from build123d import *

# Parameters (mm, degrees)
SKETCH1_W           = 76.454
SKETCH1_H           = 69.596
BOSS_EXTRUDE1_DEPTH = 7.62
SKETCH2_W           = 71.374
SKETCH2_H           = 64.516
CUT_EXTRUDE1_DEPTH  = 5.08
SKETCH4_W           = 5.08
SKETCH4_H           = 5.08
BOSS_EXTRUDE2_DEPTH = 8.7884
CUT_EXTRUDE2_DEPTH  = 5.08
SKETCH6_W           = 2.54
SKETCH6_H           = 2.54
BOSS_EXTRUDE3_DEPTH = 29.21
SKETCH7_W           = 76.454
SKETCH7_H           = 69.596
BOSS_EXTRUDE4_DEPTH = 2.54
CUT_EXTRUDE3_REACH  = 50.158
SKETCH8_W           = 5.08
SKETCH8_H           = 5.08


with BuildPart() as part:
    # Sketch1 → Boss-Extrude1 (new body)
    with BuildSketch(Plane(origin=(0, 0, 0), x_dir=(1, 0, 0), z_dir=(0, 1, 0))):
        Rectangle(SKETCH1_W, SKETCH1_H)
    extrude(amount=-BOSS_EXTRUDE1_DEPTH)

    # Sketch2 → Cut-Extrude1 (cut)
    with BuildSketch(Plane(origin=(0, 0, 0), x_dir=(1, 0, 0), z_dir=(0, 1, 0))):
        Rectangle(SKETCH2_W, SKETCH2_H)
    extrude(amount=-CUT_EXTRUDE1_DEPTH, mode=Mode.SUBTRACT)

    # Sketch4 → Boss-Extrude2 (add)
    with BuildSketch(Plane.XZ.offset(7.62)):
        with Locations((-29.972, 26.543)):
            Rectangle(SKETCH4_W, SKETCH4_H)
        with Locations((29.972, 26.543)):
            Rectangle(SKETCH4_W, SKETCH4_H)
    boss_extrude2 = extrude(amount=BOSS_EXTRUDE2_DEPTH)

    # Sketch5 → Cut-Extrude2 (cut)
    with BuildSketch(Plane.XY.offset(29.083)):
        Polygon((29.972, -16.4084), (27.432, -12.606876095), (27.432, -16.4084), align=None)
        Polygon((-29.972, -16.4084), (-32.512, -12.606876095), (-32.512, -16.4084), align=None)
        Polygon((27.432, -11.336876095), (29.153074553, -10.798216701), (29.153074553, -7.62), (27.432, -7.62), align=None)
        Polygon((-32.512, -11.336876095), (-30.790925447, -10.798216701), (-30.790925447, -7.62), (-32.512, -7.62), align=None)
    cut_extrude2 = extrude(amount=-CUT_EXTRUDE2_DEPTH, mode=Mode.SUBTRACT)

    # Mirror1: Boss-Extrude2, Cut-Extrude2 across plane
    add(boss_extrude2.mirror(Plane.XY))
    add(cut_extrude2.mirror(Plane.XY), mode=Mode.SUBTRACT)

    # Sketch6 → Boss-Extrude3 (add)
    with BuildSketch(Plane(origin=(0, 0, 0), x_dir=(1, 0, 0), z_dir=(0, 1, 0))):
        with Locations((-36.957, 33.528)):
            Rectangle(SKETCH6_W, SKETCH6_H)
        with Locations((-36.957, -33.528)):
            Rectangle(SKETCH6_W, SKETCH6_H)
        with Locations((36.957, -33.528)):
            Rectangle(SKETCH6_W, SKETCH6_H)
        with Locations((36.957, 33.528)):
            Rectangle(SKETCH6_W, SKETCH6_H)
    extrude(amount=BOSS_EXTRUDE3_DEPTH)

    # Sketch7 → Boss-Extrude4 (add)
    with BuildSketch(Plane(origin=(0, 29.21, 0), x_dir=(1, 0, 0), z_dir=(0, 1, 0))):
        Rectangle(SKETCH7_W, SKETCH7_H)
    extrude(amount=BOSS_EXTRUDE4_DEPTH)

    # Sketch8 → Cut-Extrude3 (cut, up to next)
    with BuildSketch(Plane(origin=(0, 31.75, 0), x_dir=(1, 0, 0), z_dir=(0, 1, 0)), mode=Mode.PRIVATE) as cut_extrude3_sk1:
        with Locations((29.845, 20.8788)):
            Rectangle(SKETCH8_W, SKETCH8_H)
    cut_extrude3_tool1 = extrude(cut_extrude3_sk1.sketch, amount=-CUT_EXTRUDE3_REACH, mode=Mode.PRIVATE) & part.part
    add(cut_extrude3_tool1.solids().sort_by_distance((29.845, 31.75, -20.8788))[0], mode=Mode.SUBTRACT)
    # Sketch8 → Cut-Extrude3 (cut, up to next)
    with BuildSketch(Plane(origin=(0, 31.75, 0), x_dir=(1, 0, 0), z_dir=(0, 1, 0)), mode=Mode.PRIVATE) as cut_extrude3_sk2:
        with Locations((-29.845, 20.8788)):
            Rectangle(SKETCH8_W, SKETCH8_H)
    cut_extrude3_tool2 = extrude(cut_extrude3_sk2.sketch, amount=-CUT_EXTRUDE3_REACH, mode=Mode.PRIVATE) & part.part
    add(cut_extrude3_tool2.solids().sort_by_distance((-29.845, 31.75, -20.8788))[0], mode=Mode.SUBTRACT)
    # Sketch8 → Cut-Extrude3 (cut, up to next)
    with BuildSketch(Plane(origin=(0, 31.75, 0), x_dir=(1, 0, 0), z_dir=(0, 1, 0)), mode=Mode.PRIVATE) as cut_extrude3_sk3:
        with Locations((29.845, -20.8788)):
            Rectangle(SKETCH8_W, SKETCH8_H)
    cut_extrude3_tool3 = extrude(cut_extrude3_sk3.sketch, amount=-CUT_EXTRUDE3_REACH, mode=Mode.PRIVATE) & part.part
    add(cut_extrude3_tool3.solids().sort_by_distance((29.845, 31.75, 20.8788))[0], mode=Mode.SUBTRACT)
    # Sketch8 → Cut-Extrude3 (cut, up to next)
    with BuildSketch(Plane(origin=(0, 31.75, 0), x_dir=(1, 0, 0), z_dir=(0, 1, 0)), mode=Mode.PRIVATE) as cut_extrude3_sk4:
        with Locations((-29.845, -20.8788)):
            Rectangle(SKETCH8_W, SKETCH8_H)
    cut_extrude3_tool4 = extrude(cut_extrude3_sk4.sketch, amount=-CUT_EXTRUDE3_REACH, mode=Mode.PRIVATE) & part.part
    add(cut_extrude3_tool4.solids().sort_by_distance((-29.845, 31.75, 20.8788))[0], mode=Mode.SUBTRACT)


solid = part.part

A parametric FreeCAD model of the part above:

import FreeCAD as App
import Part
import Sketcher

V = App.Vector
Q = App.Units.Quantity


def add_polygon(sketch, points):
    """Adds a closed chain of lines whose ends are joined by coincident constraints."""
    first, n = sketch.GeometryCount, len(points)
    for a, b in zip(points, points[1:] + points[:1]):
        sketch.addGeometry(Part.LineSegment(App.Vector(*a, 0), App.Vector(*b, 0)), False)
    for i in range(n):
        sketch.addConstraint(Sketcher.Constraint("Coincident", first + i, 2, first + (i + 1) % n, 1))

doc = App.newDocument("Part")
body = doc.addObject("PartDesign::Body", "Body")

# Sketch on XZ plane
sketch1 = body.newObject("Sketcher::SketchObject", "Sketch")
sketch1.AttachmentSupport = (doc.getObject("XZ_Plane"), [""])
sketch1.MapMode = "FlatFace"
add_polygon(sketch1, [(-38, -35), (-38, 35), (38, 35), (38, -35)])  # lines 0-3
sketch1.addConstraint([
    Sketcher.Constraint("Vertical", 0),
    Sketcher.Constraint("Horizontal", 1),
    Sketcher.Constraint("Vertical", 2),
    Sketcher.Constraint("Horizontal", 3),
    Sketcher.Constraint("Symmetric", 0, 2, 2, 2, -1, 1),
    Sketcher.Constraint("DistanceX", 1, 1, 1, 2, Q("3.01 in")),
    Sketcher.Constraint("DistanceY", 0, 1, 0, 2, Q("2.74 in")),
])
pad1 = body.newObject("PartDesign::Pad", "Pad")
pad1.Profile = sketch1
pad1.Length = Q("0.3 in")

# Sketch on XZ plane
sketch2 = body.newObject("Sketcher::SketchObject", "Sketch001")
sketch2.AttachmentSupport = (doc.getObject("XZ_Plane"), [""])
sketch2.MapMode = "FlatFace"
add_polygon(sketch2, [(-36, -32), (-36, 32), (36, 32), (36, -32)])  # lines 0-3
sketch2.addConstraint([
    Sketcher.Constraint("Vertical", 0),
    Sketcher.Constraint("Horizontal", 1),
    Sketcher.Constraint("Vertical", 2),
    Sketcher.Constraint("Horizontal", 3),
    Sketcher.Constraint("Symmetric", 0, 2, 2, 2, -1, 1),
    Sketcher.Constraint("DistanceX", 1, 1, 1, 2, Q("2.81 in")),
    Sketcher.Constraint("DistanceY", 0, 1, 0, 2, Q("2.54 in")),
])
pocket1 = body.newObject("PartDesign::Pocket", "Pocket")
pocket1.Profile = sketch2
pocket1.Length = Q("0.2 in")
pocket1.Reversed = True

# Sketch on XZ plane
sketch3 = body.newObject("Sketcher::SketchObject", "Sketch002")
sketch3.AttachmentSupport = (doc.getObject("XZ_Plane"), [""])
sketch3.MapMode = "FlatFace"
sketch3.AttachmentOffset = App.Placement(V(0, 0, 0.3 * 25.4), App.Rotation())
add_polygon(sketch3, [(-33, 29), (-33, 24), (-27, 24), (-27, 29)])  # lines 0-3
add_polygon(sketch3, [(27, 29), (27, 24), (33, 24), (33, 29)])  # lines 4-7
sketch3.addConstraint([
    Sketcher.Constraint("Vertical", 0),
    Sketcher.Constraint("Horizontal", 1),
    Sketcher.Constraint("Vertical", 2),
    Sketcher.Constraint("Horizontal", 3),
    Sketcher.Constraint("Vertical", 4),
    Sketcher.Constraint("Horizontal", 5),
    Sketcher.Constraint("Vertical", 6),
    Sketcher.Constraint("Horizontal", 7),
    Sketcher.Constraint("Symmetric", 1, 2, 4, 2, -2),
    Sketcher.Constraint("Symmetric", 3, 2, 6, 2, -2),
    Sketcher.Constraint("Equal", 7, 0),
    Sketcher.Constraint("DistanceX", 1, 1, 1, 2, Q("0.2 in")),
    Sketcher.Constraint("DistanceX", 0, 2, -1, 1, Q("1.28 in")),
    Sketcher.Constraint("DistanceY", -1, 1, 0, 2, Q("0.945 in")),
])
pad2 = body.newObject("PartDesign::Pad", "Pad001")
pad2.Profile = sketch3
pad2.Length = Q("0.346 in")

# Sketch on XY plane
sketch4 = body.newObject("Sketcher::SketchObject", "Sketch003")
sketch4.AttachmentSupport = (doc.getObject("XY_Plane"), [""])
sketch4.MapMode = "FlatFace"
sketch4.AttachmentOffset = App.Placement(V(0, 0, 1.145 * 25.4), App.Rotation())
add_polygon(sketch4, [(30, -16.4), (27.4, -12.6), (27.4, -16.4)])  # lines 0-2
add_polygon(sketch4, [(-30, -16.4), (-32.5, -12.6), (-32.5, -16.4)])  # lines 3-5
add_polygon(sketch4, [(27.4, -11.3), (29.2, -10.8), (29.2, -7.6), (27.4, -7.6)])  # lines 6-9
add_polygon(sketch4, [(-32.5, -11.3), (-30.8, -10.8), (-30.8, -7.6), (-32.5, -7.6)])  # lines 10-13
sketch4.addConstraint([
    Sketcher.Constraint("Vertical", 1),
    Sketcher.Constraint("Horizontal", 2),
    Sketcher.Constraint("Vertical", 4),
    Sketcher.Constraint("Horizontal", 5),
    Sketcher.Constraint("Vertical", 7),
    Sketcher.Constraint("Horizontal", 8),
    Sketcher.Constraint("Vertical", 9),
    Sketcher.Constraint("Vertical", 11),
    Sketcher.Constraint("Horizontal", 12),
    Sketcher.Constraint("Vertical", 13),
    Sketcher.Constraint("Symmetric", 2, 2, 5, 2, -2),
    Sketcher.Constraint("Parallel", 0, 3),
    Sketcher.Constraint("Parallel", 6, 10),
    Sketcher.Constraint("Horizontal", 0, 2, 3, 2),
    Sketcher.Constraint("Horizontal", 6, 2, 10, 2),
    Sketcher.Constraint("Horizontal", 8, 2, 11, 2),
    Sketcher.Constraint("Horizontal", 9, 2, 13, 2),
    Sketcher.Constraint("Vertical", 1, 2, 8, 2),
    Sketcher.Constraint("Vertical", 4, 2, 12, 2),
    Sketcher.Constraint("DistanceX", 2, 1, 2, 2, Q("0.1 in")),
    Sketcher.Constraint("DistanceY", 7, 2, -1, 1, Q("0.3 in")),
    Sketcher.Constraint("Distance", 0, Q("0.18 in")),
    Sketcher.Constraint("DistanceX", -1, 1, 0, 2, Q("1.08 in")),
    Sketcher.Constraint("DistanceY", 0, 2, 9, 2, Q("0.05 in")),
    Sketcher.Constraint("Distance", 6, Q("0.071 in")),
    Sketcher.Constraint("DistanceY", 1, 2, -1, 1, Q("0.646 in")),
    Sketcher.Constraint("DistanceX", 8, 2, 8, 1, Q("1.721075 mm")),
])
pocket2 = body.newObject("PartDesign::Pocket", "Pocket001")
pocket2.Profile = sketch4
pocket2.Length = Q("0.2 in")
doc.recompute()

mirrored = body.newObject("PartDesign::Mirrored", "Mirrored")
mirrored.Originals = [pad2, pocket2]
mirrored.MirrorPlane = (doc.getObject("XY_Plane"), [""])
body.Tip = mirrored

# Sketch on XZ plane
sketch5 = body.newObject("Sketcher::SketchObject", "Sketch004")
sketch5.AttachmentSupport = (doc.getObject("XZ_Plane"), [""])
sketch5.MapMode = "FlatFace"
add_polygon(sketch5, [(-38.2, -34.8), (-38.2, -32.3), (-35.7, -32.3), (-35.7, -34.8)])  # lines 0-3
add_polygon(sketch5, [(-38.2, 32.3), (-38.2, 34.8), (-35.7, 34.8), (-35.7, 32.3)])  # lines 4-7
add_polygon(sketch5, [(35.7, 32.3), (35.7, 34.8), (38.2, 34.8), (38.2, 32.3)])  # lines 8-11
add_polygon(sketch5, [(35.7, -34.8), (35.7, -32.3), (38.2, -32.3), (38.2, -34.8)])  # lines 12-15
sketch5.addConstraint([
    Sketcher.Constraint("Vertical", 0),
    Sketcher.Constraint("Horizontal", 1),
    Sketcher.Constraint("Vertical", 2),
    Sketcher.Constraint("Horizontal", 3),
    Sketcher.Constraint("Vertical", 4),
    Sketcher.Constraint("Horizontal", 5),
    Sketcher.Constraint("Vertical", 6),
    Sketcher.Constraint("Horizontal", 7),
    Sketcher.Constraint("Vertical", 8),
    Sketcher.Constraint("Horizontal", 9),
    Sketcher.Constraint("Vertical", 10),
    Sketcher.Constraint("Horizontal", 11),
    Sketcher.Constraint("Vertical", 12),
    Sketcher.Constraint("Horizontal", 13),
    Sketcher.Constraint("Vertical", 14),
    Sketcher.Constraint("Horizontal", 15),
    Sketcher.Constraint("Symmetric", 2, 2, 8, 2, -1, 1),
    Sketcher.Constraint("Symmetric", 0, 2, 10, 2, -1, 1),
    Sketcher.Constraint("Symmetric", 6, 2, 12, 2, -1, 1),
    Sketcher.Constraint("Symmetric", 4, 2, 14, 2, -1, 1),
    Sketcher.Constraint("Symmetric", 5, 2, 8, 2, -2),
    Sketcher.Constraint("Symmetric", 7, 2, 10, 2, -2),
    Sketcher.Constraint("Equal", 15, 0),
    Sketcher.Constraint("DistanceX", 1, 1, 1, 2, Q("0.1 in")),
    Sketcher.Constraint("DistanceY", 0, 2, -1, 1, Q("1.27 in")),
    Sketcher.Constraint("DistanceX", 5, 2, 8, 2, Q("2.81 in")),
])
pad3 = body.newObject("PartDesign::Pad", "Pad002")
pad3.Profile = sketch5
pad3.Length = Q("1.15 in")
pad3.Reversed = True

# Sketch on XZ plane
sketch6 = body.newObject("Sketcher::SketchObject", "Sketch005")
sketch6.AttachmentSupport = (doc.getObject("XZ_Plane"), [""])
sketch6.MapMode = "FlatFace"
sketch6.AttachmentOffset = App.Placement(V(0, 0, -1.15 * 25.4), App.Rotation())
add_polygon(sketch6, [(-38, -35), (-38, 35), (38, 35), (38, -35)])  # lines 0-3
sketch6.addConstraint([
    Sketcher.Constraint("Vertical", 0),
    Sketcher.Constraint("Horizontal", 1),
    Sketcher.Constraint("Vertical", 2),
    Sketcher.Constraint("Horizontal", 3),
    Sketcher.Constraint("Symmetric", 0, 2, 2, 2, -1, 1),
    Sketcher.Constraint("DistanceX", 1, 1, 1, 2, Q("3.01 in")),
    Sketcher.Constraint("DistanceY", 0, 1, 0, 2, Q("2.74 in")),
])
pad4 = body.newObject("PartDesign::Pad", "Pad003")
pad4.Profile = sketch6
pad4.Length = Q("0.1 in")
pad4.Reversed = True

# Sketch on XZ plane
sketch7 = body.newObject("Sketcher::SketchObject", "Sketch006")
sketch7.AttachmentSupport = (doc.getObject("XZ_Plane"), [""])
sketch7.MapMode = "FlatFace"
sketch7.AttachmentOffset = App.Placement(V(0, 0, -1.25 * 25.4), App.Rotation())
add_polygon(sketch7, [(27, -23), (27, -18), (32, -18), (32, -23)])  # lines 0-3
sketch7.addConstraint([
    Sketcher.Constraint("Vertical", 0),
    Sketcher.Constraint("Horizontal", 1),
    Sketcher.Constraint("Vertical", 2),
    Sketcher.Constraint("Horizontal", 3),
    Sketcher.Constraint("Equal", 3, 0),
    Sketcher.Constraint("DistanceX", 1, 1, 1, 2, Q("0.2 in")),
    Sketcher.Constraint("DistanceX", -1, 1, 0, 2, Q("1.075 in")),
    Sketcher.Constraint("DistanceY", 0, 2, -1, 1, Q("0.722 in")),
])
pocket3 = body.newObject("PartDesign::Pocket", "Pocket002")
pocket3.Profile = sketch7
pocket3.Type = "UpToFirst"
pocket3.Reversed = True

# Sketch on XZ plane
sketch8 = body.newObject("Sketcher::SketchObject", "Sketch007")
sketch8.AttachmentSupport = (doc.getObject("XZ_Plane"), [""])
sketch8.MapMode = "FlatFace"
sketch8.AttachmentOffset = App.Placement(V(0, 0, -1.25 * 25.4), App.Rotation())
add_polygon(sketch8, [(-32, -23), (-32, -18), (-27, -18), (-27, -23)])  # lines 0-3
sketch8.addConstraint([
    Sketcher.Constraint("Vertical", 0),
    Sketcher.Constraint("Horizontal", 1),
    Sketcher.Constraint("Vertical", 2),
    Sketcher.Constraint("Horizontal", 3),
    Sketcher.Constraint("Equal", 3, 0),
    Sketcher.Constraint("DistanceX", 1, 1, 1, 2, Q("0.2 in")),
    Sketcher.Constraint("DistanceX", 0, 2, -1, 1, Q("1.275 in")),
    Sketcher.Constraint("DistanceY", 0, 2, -1, 1, Q("0.722 in")),
])
pocket4 = body.newObject("PartDesign::Pocket", "Pocket003")
pocket4.Profile = sketch8
pocket4.Type = "UpToFirst"
pocket4.Reversed = True

# Sketch on XZ plane
sketch9 = body.newObject("Sketcher::SketchObject", "Sketch008")
sketch9.AttachmentSupport = (doc.getObject("XZ_Plane"), [""])
sketch9.MapMode = "FlatFace"
sketch9.AttachmentOffset = App.Placement(V(0, 0, -1.25 * 25.4), App.Rotation())
add_polygon(sketch9, [(27, 18), (27, 23), (32, 23), (32, 18)])  # lines 0-3
sketch9.addConstraint([
    Sketcher.Constraint("Vertical", 0),
    Sketcher.Constraint("Horizontal", 1),
    Sketcher.Constraint("Vertical", 2),
    Sketcher.Constraint("Horizontal", 3),
    Sketcher.Constraint("Equal", 3, 0),
    Sketcher.Constraint("DistanceX", 1, 1, 1, 2, Q("0.2 in")),
    Sketcher.Constraint("DistanceX", -1, 1, 0, 2, Q("1.075 in")),
    Sketcher.Constraint("DistanceY", -1, 1, 0, 2, Q("0.922 in")),
])
pocket5 = body.newObject("PartDesign::Pocket", "Pocket004")
pocket5.Profile = sketch9
pocket5.Type = "UpToFirst"
pocket5.Reversed = True

# Sketch on XZ plane
sketch10 = body.newObject("Sketcher::SketchObject", "Sketch009")
sketch10.AttachmentSupport = (doc.getObject("XZ_Plane"), [""])
sketch10.MapMode = "FlatFace"
sketch10.AttachmentOffset = App.Placement(V(0, 0, -1.25 * 25.4), App.Rotation())
add_polygon(sketch10, [(-32, 18), (-32, 23), (-27, 23), (-27, 18)])  # lines 0-3
sketch10.addConstraint([
    Sketcher.Constraint("Vertical", 0),
    Sketcher.Constraint("Horizontal", 1),
    Sketcher.Constraint("Vertical", 2),
    Sketcher.Constraint("Horizontal", 3),
    Sketcher.Constraint("Equal", 3, 0),
    Sketcher.Constraint("DistanceX", 1, 1, 1, 2, Q("0.2 in")),
    Sketcher.Constraint("DistanceX", 0, 2, -1, 1, Q("1.275 in")),
    Sketcher.Constraint("DistanceY", -1, 1, 0, 2, Q("0.922 in")),
])
pocket6 = body.newObject("PartDesign::Pocket", "Pocket005")
pocket6.Profile = sketch10
pocket6.Type = "UpToFirst"
pocket6.Reversed = True

doc.recompute()
